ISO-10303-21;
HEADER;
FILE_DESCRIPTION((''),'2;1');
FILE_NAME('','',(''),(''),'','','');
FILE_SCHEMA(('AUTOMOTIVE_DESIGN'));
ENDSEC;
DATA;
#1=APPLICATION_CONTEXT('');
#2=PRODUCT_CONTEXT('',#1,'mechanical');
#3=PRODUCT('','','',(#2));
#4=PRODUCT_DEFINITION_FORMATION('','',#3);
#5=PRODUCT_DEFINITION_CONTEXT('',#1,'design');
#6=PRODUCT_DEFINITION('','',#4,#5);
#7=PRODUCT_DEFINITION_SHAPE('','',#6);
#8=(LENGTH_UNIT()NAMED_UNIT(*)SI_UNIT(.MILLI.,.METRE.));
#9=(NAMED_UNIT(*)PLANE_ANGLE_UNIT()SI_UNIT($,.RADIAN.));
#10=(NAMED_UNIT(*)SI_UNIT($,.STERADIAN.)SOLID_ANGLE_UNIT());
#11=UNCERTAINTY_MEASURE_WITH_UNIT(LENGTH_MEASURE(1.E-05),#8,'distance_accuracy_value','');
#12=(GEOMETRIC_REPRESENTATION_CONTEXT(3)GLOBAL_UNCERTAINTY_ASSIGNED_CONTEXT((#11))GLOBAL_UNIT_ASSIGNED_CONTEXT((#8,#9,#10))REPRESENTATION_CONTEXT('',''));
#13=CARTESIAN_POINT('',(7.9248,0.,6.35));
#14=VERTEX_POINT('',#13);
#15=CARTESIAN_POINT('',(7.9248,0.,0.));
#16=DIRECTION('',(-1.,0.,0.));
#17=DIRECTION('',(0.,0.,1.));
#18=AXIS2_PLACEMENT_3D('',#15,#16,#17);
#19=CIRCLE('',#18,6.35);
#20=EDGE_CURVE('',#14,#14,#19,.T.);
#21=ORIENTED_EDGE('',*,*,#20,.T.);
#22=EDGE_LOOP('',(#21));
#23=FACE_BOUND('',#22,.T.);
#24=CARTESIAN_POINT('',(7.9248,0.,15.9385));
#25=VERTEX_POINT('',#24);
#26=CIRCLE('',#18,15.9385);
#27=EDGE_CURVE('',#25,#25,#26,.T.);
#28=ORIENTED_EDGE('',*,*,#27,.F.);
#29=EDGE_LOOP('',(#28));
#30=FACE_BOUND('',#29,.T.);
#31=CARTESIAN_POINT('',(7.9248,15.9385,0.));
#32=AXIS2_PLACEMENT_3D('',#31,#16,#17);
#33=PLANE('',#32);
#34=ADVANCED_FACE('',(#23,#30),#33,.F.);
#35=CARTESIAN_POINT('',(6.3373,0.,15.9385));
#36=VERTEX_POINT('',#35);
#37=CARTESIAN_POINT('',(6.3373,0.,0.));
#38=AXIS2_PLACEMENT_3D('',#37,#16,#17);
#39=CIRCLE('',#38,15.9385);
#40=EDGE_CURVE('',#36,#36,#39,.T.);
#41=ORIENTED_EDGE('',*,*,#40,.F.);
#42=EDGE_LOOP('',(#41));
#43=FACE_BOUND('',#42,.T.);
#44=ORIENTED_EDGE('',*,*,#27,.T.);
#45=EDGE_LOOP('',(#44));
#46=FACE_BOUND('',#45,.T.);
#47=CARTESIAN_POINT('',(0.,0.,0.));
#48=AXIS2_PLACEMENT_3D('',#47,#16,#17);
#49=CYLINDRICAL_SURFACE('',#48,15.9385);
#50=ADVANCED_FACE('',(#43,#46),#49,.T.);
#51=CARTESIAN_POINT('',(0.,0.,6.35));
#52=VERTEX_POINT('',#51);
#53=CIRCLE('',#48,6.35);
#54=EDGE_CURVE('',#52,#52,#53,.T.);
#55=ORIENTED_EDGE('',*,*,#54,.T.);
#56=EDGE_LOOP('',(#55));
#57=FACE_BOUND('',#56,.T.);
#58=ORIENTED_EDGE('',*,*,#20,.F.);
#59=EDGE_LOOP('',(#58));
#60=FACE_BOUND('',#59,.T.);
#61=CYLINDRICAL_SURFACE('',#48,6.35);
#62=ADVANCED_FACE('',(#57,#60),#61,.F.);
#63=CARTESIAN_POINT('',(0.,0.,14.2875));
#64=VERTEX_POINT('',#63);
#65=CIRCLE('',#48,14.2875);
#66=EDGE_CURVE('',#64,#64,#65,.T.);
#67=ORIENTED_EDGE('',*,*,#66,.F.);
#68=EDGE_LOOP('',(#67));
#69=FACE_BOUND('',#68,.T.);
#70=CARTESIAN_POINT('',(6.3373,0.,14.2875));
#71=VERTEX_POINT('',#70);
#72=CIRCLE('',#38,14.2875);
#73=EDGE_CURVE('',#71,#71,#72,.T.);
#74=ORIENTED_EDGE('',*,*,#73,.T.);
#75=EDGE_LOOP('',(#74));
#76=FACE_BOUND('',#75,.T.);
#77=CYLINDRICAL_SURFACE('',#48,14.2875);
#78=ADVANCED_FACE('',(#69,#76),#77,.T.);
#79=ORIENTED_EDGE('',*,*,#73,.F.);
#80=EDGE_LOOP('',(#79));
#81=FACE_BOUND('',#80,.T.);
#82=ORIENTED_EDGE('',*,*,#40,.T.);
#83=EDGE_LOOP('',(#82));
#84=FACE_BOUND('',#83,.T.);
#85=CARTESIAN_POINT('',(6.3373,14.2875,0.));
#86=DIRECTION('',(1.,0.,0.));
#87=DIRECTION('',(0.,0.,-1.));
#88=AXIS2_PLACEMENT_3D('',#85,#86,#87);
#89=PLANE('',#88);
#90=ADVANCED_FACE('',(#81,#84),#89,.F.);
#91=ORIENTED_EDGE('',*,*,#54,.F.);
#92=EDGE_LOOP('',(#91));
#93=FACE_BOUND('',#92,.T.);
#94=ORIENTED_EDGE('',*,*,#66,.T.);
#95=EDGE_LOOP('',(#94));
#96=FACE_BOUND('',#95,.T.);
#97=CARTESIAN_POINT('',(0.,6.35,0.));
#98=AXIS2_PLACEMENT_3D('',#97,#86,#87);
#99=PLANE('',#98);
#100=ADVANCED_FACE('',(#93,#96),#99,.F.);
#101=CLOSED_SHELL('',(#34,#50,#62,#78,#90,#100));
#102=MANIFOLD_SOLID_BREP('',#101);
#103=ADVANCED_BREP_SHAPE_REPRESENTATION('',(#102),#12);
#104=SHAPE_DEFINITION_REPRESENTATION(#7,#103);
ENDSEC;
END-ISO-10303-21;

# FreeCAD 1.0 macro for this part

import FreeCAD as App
import Part
import Sketcher
Q = App.Units.Quantity

doc = App.newDocument("Part")
body = doc.addObject("PartDesign::Body", "Body")

# Sketch on XY plane
sketch1 = body.newObject("Sketcher::SketchObject", "Sketch")
sketch1.AttachmentSupport = (doc.getObject("XY_Plane"), [""])
sketch1.MapMode = "FlatFace"
sketch1.addGeometry([
    Part.LineSegment(App.Vector(0, 6.35, 0), App.Vector(7.9248, 6.35, 0)),  # 0
    Part.LineSegment(App.Vector(7.9248, 6.35, 0), App.Vector(7.9248, 15.9385, 0)),  # 1
    Part.LineSegment(App.Vector(7.9248, 15.9385, 0), App.Vector(6.3373, 15.9385, 0)),  # 2
    Part.LineSegment(App.Vector(6.3373, 15.9385, 0), App.Vector(6.3373, 14.2875, 0)),  # 3
    Part.LineSegment(App.Vector(6.3373, 14.2875, 0), App.Vector(0, 14.2875, 0)),  # 4
    Part.LineSegment(App.Vector(0, 14.2875, 0), App.Vector(0, 6.35, 0)),  # 5
], False)
sketch1.addConstraint([
    Sketcher.Constraint("Coincident", 0, 2, 1, 1),
    Sketcher.Constraint("Coincident", 1, 2, 2, 1),
    Sketcher.Constraint("Coincident", 2, 2, 3, 1),
    Sketcher.Constraint("Coincident", 3, 2, 4, 1),
    Sketcher.Constraint("Coincident", 4, 2, 5, 1),
    Sketcher.Constraint("Coincident", 5, 2, 0, 1),
    Sketcher.Constraint("Horizontal", 0),
    Sketcher.Constraint("Vertical", 1),
    Sketcher.Constraint("Horizontal", 2),
    Sketcher.Constraint("Vertical", 3),
    Sketcher.Constraint("Horizontal", 4),
    Sketcher.Constraint("Vertical", 5),
    Sketcher.Constraint("PointOnObject", 4, 2, -2),
    Sketcher.Constraint("DistanceX", 0, 1, 0, 2, Q("0.312 in")),
    Sketcher.Constraint("DistanceX", 2, 2, 2, 1, Q("0.0625 in")),
    Sketcher.Constraint("DistanceY", 3, 2, 3, 1, Q("0.065 in")),
    Sketcher.Constraint("DistanceY", 5, 2, 5, 1, Q("0.3125 in")),
    Sketcher.Constraint("DistanceY", -1, 1, 0, 2, Q("0.25 in")),
])
revolution = body.newObject("PartDesign::Revolution", "Revolution")
revolution.Profile = sketch1
revolution.ReferenceAxis = (sketch1, ["H_Axis"])
revolution.Angle = 360

doc.recompute()
